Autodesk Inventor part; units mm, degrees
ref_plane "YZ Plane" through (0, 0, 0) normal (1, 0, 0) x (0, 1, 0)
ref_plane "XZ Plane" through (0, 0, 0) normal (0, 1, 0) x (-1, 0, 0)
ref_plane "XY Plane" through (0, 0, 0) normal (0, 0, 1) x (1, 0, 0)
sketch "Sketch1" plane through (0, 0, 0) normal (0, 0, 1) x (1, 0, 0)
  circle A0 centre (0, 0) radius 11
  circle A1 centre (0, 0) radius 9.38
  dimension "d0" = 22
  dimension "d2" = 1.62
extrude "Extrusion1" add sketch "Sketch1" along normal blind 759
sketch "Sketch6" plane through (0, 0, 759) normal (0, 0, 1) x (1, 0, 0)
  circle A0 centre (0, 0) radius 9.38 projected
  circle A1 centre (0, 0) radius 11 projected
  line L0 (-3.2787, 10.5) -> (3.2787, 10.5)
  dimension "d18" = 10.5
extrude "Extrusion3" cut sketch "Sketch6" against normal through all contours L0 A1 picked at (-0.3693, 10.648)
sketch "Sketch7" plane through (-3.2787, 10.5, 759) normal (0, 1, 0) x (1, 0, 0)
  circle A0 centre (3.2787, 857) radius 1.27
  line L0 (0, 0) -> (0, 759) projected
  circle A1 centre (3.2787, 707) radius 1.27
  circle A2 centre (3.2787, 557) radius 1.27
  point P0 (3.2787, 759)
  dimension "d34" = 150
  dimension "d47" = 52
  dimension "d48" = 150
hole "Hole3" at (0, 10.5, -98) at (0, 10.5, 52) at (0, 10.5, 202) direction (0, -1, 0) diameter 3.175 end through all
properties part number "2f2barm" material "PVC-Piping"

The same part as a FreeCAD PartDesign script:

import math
import FreeCAD as App
import Part
import Sketcher
from FreeCAD import Vector
Q = App.Units.Quantity

doc = App.newDocument("Part")
body = doc.addObject("PartDesign::Body", "Body")

# Sketch on XY plane
sketch1 = body.newObject("Sketcher::SketchObject", "Sketch")
sketch1.AttachmentSupport = (doc.getObject("XY_Plane"), [""])
sketch1.MapMode = "FlatFace"
sketch1.addGeometry(Part.Circle(Vector(0, 0, 0), Vector(0, 0, 1), 11), False)
sketch1.addGeometry(Part.Circle(Vector(0, 0, 0), Vector(0, 0, 1), 9), False)
sketch1.addConstraint(Sketcher.Constraint("Coincident", 0, 3, -1, 1))
sketch1.addConstraint(Sketcher.Constraint("Coincident", 1, 3, -1, 1))
sketch1.addConstraint(Sketcher.Constraint("Diameter", 0, Q("22 mm")))
sketch1.addConstraint(Sketcher.Constraint("Diameter", 1, Q("18.76 mm")))
pad1 = body.newObject("PartDesign::Pad", "Pad")
pad1.Profile = sketch1
pad1.Length = 759

# Sketch on XY plane
sketch2 = body.newObject("Sketcher::SketchObject", "Sketch001")
sketch2.AttachmentSupport = (doc.getObject("XY_Plane"), [""])
sketch2.MapMode = "FlatFace"
sketch2.AttachmentOffset = App.Placement(Vector(0, 0, 759), App.Rotation())
sketch2.addGeometry(Part.LineSegment(Vector(-3, 10, 0), Vector(3, 10, 0)), False)
sketch2.addGeometry(Part.ArcOfCircle(Part.Circle(Vector(0, 0, 0), Vector(0, 0, 1), 11), math.radians(73), math.radians(107)), False)
sketch2.addConstraint(Sketcher.Constraint("Coincident", 0, 1, 1, 2))
sketch2.addConstraint(Sketcher.Constraint("Coincident", 1, 1, 0, 2))
sketch2.addConstraint(Sketcher.Constraint("Horizontal", 0))
sketch2.addConstraint(Sketcher.Constraint("Coincident", 1, 3, -1, 1))
sketch2.addConstraint(Sketcher.Constraint("Radius", 1, Q("11 mm")))
sketch2.addConstraint(Sketcher.Constraint("DistanceY", -1, 1, 0, 1, Q("10.5 mm")))
pocket1 = body.newObject("PartDesign::Pocket", "Pocket")
pocket1.Profile = sketch2
pocket1.Type = "ThroughAll"

# Sketch on XZ plane
sketch3 = body.newObject("Sketcher::SketchObject", "Sketch002")
sketch3.AttachmentSupport = (doc.getObject("XZ_Plane"), [""])
sketch3.MapMode = "FlatFace"
sketch3.AttachmentOffset = App.Placement(Vector(0, 0, -10.5), App.Rotation())
sketch3.addGeometry(Part.Circle(Vector(0, -98, 0), Vector(0, 0, 1), 1.6), False)
sketch3.addGeometry(Part.Circle(Vector(0, 52, 0), Vector(0, 0, 1), 1.6), False)
sketch3.addGeometry(Part.Circle(Vector(0, 202, 0), Vector(0, 0, 1), 1.6), False)
sketch3.addConstraint(Sketcher.Constraint("Equal", 0, 1))
sketch3.addConstraint(Sketcher.Constraint("Equal", 1, 2))
sketch3.addConstraint(Sketcher.Constraint("PointOnObject", 0, 3, -2))
sketch3.addConstraint(Sketcher.Constraint("PointOnObject", 1, 3, -2))
sketch3.addConstraint(Sketcher.Constraint("PointOnObject", 2, 3, -2))
sketch3.addConstraint(Sketcher.Constraint("Diameter", 0, Q("3.175 mm")))
sketch3.addConstraint(Sketcher.Constraint("DistanceY", 0, 3, -1, 1, Q("98 mm")))
sketch3.addConstraint(Sketcher.Constraint("DistanceY", -1, 1, 1, 3, Q("52 mm")))
sketch3.addConstraint(Sketcher.Constraint("DistanceY", -1, 1, 2, 3, Q("202 mm")))
doc.recompute()
hole = body.newObject("PartDesign::Hole", "Hole")
hole.Profile = sketch3
hole.ThreadType = "None"
hole.Diameter = 3.175
hole.DepthType = "ThroughAll"
hole.Reversed = True

doc.recompute()
